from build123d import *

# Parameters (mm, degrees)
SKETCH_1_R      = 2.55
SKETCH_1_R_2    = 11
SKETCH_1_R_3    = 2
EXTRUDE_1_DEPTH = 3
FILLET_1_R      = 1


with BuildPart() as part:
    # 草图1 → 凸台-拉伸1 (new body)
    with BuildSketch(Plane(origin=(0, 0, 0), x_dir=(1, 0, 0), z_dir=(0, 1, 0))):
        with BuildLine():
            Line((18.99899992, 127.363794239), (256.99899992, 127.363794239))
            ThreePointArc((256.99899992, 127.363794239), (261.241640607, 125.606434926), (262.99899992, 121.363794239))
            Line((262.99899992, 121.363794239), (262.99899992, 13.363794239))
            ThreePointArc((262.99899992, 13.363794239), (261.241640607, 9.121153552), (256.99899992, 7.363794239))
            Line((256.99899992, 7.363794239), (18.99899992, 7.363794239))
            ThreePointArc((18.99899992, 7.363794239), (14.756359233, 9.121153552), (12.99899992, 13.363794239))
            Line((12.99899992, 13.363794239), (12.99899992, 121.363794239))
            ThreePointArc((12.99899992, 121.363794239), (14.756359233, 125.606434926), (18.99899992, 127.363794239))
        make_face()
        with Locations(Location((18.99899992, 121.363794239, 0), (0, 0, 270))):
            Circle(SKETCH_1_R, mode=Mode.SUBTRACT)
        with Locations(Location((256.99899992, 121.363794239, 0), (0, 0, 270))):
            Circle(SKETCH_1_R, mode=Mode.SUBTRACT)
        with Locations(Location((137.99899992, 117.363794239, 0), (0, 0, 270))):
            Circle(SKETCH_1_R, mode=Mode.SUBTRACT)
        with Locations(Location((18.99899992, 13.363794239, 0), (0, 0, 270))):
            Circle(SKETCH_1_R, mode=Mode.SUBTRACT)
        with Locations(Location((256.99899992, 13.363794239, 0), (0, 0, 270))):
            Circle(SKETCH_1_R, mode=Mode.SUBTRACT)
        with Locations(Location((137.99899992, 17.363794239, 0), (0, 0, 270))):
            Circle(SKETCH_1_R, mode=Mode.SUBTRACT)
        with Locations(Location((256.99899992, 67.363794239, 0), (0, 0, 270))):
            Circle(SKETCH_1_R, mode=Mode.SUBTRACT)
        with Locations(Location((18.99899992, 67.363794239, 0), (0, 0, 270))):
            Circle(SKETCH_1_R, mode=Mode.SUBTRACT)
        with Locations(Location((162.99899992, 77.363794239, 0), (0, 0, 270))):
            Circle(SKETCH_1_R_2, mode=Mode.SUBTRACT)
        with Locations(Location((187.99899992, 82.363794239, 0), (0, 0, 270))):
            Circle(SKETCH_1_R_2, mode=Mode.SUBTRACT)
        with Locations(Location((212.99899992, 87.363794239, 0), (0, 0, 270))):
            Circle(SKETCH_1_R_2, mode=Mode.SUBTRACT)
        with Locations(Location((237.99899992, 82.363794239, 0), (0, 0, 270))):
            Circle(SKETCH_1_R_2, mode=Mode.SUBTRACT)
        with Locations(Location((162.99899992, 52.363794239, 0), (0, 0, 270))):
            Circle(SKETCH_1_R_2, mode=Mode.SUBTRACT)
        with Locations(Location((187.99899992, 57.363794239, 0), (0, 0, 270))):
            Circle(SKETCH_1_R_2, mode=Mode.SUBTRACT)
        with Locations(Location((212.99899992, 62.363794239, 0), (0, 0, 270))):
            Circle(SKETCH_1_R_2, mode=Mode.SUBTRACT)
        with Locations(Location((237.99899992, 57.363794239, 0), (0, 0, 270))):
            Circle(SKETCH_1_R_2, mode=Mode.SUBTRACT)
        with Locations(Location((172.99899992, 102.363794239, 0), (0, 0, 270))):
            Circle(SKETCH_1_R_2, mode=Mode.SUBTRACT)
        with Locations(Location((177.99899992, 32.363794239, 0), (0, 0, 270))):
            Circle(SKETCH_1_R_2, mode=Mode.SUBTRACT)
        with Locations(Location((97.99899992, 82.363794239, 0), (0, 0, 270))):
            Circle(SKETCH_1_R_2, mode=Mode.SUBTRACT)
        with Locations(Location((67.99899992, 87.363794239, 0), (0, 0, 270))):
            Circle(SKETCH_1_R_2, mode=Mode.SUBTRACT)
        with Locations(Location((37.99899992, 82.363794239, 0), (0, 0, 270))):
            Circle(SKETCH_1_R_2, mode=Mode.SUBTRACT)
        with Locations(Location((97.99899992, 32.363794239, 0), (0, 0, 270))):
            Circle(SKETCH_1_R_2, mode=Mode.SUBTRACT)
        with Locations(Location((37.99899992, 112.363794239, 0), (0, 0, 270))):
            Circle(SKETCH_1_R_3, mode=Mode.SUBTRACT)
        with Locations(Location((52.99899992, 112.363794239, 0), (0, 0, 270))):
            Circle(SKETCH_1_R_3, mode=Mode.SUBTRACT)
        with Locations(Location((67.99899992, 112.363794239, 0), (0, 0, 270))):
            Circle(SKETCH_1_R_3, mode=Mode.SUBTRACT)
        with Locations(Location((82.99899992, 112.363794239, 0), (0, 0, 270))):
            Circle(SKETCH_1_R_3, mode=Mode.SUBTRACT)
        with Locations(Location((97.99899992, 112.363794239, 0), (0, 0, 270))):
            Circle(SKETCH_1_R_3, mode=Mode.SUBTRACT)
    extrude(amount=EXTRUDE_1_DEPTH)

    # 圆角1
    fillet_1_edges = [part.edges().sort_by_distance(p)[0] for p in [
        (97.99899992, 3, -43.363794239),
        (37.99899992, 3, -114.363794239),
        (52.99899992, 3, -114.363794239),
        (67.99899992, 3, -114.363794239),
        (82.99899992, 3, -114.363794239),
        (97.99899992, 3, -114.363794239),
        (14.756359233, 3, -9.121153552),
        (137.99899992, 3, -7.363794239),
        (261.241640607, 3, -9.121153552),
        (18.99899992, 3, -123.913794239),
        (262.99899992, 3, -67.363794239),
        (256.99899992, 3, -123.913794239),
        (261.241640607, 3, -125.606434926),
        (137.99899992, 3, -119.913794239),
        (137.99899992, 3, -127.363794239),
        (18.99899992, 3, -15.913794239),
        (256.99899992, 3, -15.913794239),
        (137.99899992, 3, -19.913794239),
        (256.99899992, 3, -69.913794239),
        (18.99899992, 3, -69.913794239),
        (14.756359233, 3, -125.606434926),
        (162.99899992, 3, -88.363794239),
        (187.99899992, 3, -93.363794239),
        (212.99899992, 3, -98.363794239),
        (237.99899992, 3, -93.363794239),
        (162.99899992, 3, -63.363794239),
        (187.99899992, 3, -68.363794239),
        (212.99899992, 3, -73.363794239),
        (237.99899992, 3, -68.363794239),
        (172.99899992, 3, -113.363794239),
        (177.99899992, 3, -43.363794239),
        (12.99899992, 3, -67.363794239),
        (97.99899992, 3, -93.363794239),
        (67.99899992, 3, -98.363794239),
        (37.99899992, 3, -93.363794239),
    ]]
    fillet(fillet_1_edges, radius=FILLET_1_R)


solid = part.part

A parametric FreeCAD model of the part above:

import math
import FreeCAD as App
import Part
import Sketcher
from FreeCAD import Vector
Q = App.Units.Quantity


def edges_at(feature, points):
    """Names of the edges that pass closest to the given points."""
    edges = feature.Shape.Edges
    near = lambda p: min(range(len(edges)), key=lambda i: edges[i].distToShape(Part.Vertex(*p))[0])
    return sorted({f"Edge{near(p) + 1}" for p in points})

doc = App.newDocument("Part")
params = doc.addObject("Spreadsheet::Sheet", "Params")
for row, (alias, value) in enumerate([
    ("sketch1_diameter", "22 mm"),
    ("sketch1_diameter2", "4 mm"),
    ("sketch1_radius", "6 mm"),
    ("sketch1_diameter3", "5.1 mm"),
    ("sketch1_width", "238 mm"),
    ("pad1_length", "3 mm"),
    ("fillet_radius", "1 mm"),
], start=1):
    params.set(f"A{row}", alias)
    params.set(f"B{row}", "=" + value)
    params.setAlias(f"B{row}", alias)

body = doc.addObject("PartDesign::Body", "Body")

# Sketch on XZ plane
sketch1 = doc.addObject("Sketcher::SketchObject", "Sketch")
body.addObject(sketch1)
sketch1.AttachmentSupport = (doc.XZ_Plane, [""])
sketch1.MapMode = "FlatFace"
sketch1.addGeometry(Part.LineSegment(Vector(257, -127.4, 0), Vector(19, -127.4, 0)), False)
sketch1.addGeometry(Part.ArcOfCircle(Part.Circle(Vector(19, -121.4, 0), Vector(0, 0, 1), 6), math.radians(180), math.radians(270)), False)
sketch1.addGeometry(Part.LineSegment(Vector(13, -121.4, 0), Vector(13, -13.4, 0)), False)
sketch1.addGeometry(Part.ArcOfCircle(Part.Circle(Vector(19, -13.4, 0), Vector(0, 0, 1), 6), math.radians(90), math.radians(180)), False)
sketch1.addGeometry(Part.LineSegment(Vector(19, -7.4, 0), Vector(257, -7.4, 0)), False)
sketch1.addGeometry(Part.ArcOfCircle(Part.Circle(Vector(257, -13.4, 0), Vector(0, 0, 1), 6), math.radians(0), math.radians(90)), False)
sketch1.addGeometry(Part.LineSegment(Vector(263, -13.4, 0), Vector(263, -121.4, 0)), False)
sketch1.addGeometry(Part.ArcOfCircle(Part.Circle(Vector(257, -121.4, 0), Vector(0, 0, 1), 6), math.radians(-90), math.radians(0)), False)
sketch1.addGeometry(Part.Circle(Vector(257, -13.4, 0), Vector(0, 0, 1), 2.5), False)
sketch1.addGeometry(Part.Circle(Vector(178, -32.4, 0), Vector(0, 0, 1), 11), False)
sketch1.addGeometry(Part.Circle(Vector(238, -57.4, 0), Vector(0, 0, 1), 11), False)
sketch1.addGeometry(Part.Circle(Vector(213, -62.4, 0), Vector(0, 0, 1), 11), False)
sketch1.addGeometry(Part.Circle(Vector(163, -52.4, 0), Vector(0, 0, 1), 11), False)
sketch1.addGeometry(Part.Circle(Vector(188, -57.4, 0), Vector(0, 0, 1), 11), False)
sketch1.addGeometry(Part.Circle(Vector(138, -17.4, 0), Vector(0, 0, 1), 2.5), False)
sketch1.addGeometry(Part.Circle(Vector(98, -32.4, 0), Vector(0, 0, 1), 11), False)
sketch1.addGeometry(Part.Circle(Vector(19, -13.4, 0), Vector(0, 0, 1), 2.5), False)
sketch1.addGeometry(Part.Circle(Vector(257, -67.4, 0), Vector(0, 0, 1), 2.5), False)
sketch1.addGeometry(Part.Circle(Vector(238, -82.4, 0), Vector(0, 0, 1), 11), False)
sketch1.addGeometry(Part.Circle(Vector(213, -87.4, 0), Vector(0, 0, 1), 11), False)
sketch1.addGeometry(Part.Circle(Vector(163, -77.4, 0), Vector(0, 0, 1), 11), False)
sketch1.addGeometry(Part.Circle(Vector(188, -82.4, 0), Vector(0, 0, 1), 11), False)
sketch1.addGeometry(Part.Circle(Vector(257, -121.4, 0), Vector(0, 0, 1), 2.5), False)
sketch1.addGeometry(Part.Circle(Vector(173, -102.4, 0), Vector(0, 0, 1), 11), False)
sketch1.addGeometry(Part.Circle(Vector(98, -82.4, 0), Vector(0, 0, 1), 11), False)
sketch1.addGeometry(Part.Circle(Vector(19, -67.4, 0), Vector(0, 0, 1), 2.5), False)
sketch1.addGeometry(Part.Circle(Vector(68, -87.4, 0), Vector(0, 0, 1), 11), False)
sketch1.addGeometry(Part.Circle(Vector(38, -82.4, 0), Vector(0, 0, 1), 11), False)
sketch1.addGeometry(Part.Circle(Vector(138, -117.4, 0), Vector(0, 0, 1), 2.5), False)
sketch1.addGeometry(Part.Circle(Vector(98, -112.4, 0), Vector(0, 0, 1), 2), False)
sketch1.addGeometry(Part.Circle(Vector(83, -112.4, 0), Vector(0, 0, 1), 2), False)
sketch1.addGeometry(Part.Circle(Vector(68, -112.4, 0), Vector(0, 0, 1), 2), False)
sketch1.addGeometry(Part.Circle(Vector(53, -112.4, 0), Vector(0, 0, 1), 2), False)
sketch1.addGeometry(Part.Circle(Vector(38, -112.4, 0), Vector(0, 0, 1), 2), False)
sketch1.addGeometry(Part.Circle(Vector(19, -121.4, 0), Vector(0, 0, 1), 2.5), False)
sketch1.addConstraint(Sketcher.Constraint("Tangent", 0, 2, 1, 2))
sketch1.addConstraint(Sketcher.Constraint("Tangent", 1, 1, 2, 1))
sketch1.addConstraint(Sketcher.Constraint("Tangent", 2, 2, 3, 2))
sketch1.addConstraint(Sketcher.Constraint("Tangent", 3, 1, 4, 1))
sketch1.addConstraint(Sketcher.Constraint("Tangent", 4, 2, 5, 2))
sketch1.addConstraint(Sketcher.Constraint("Tangent", 5, 1, 6, 1))
sketch1.addConstraint(Sketcher.Constraint("Tangent", 6, 2, 7, 2))
sketch1.addConstraint(Sketcher.Constraint("Tangent", 7, 1, 0, 1))
sketch1.addConstraint(Sketcher.Constraint("Horizontal", 0))
sketch1.addConstraint(Sketcher.Constraint("Vertical", 2))
sketch1.addConstraint(Sketcher.Constraint("Horizontal", 4))
sketch1.addConstraint(Sketcher.Constraint("Vertical", 6))
sketch1.addConstraint(Sketcher.Constraint("Coincident", 8, 3, 5, 3))
sketch1.addConstraint(Sketcher.Constraint("Coincident", 16, 3, 3, 3))
sketch1.addConstraint(Sketcher.Constraint("Coincident", 22, 3, 7, 3))
sketch1.addConstraint(Sketcher.Constraint("Coincident", 34, 3, 1, 3))
sketch1.addConstraint(Sketcher.Constraint("Equal", 1, 3))
sketch1.addConstraint(Sketcher.Constraint("Equal", 3, 5))
sketch1.addConstraint(Sketcher.Constraint("Equal", 5, 7))
sketch1.addConstraint(Sketcher.Constraint("Equal", 9, 10))
sketch1.addConstraint(Sketcher.Constraint("Equal", 10, 11))
sketch1.addConstraint(Sketcher.Constraint("Equal", 11, 12))
sketch1.addConstraint(Sketcher.Constraint("Equal", 12, 13))
sketch1.addConstraint(Sketcher.Constraint("Equal", 8, 14))
sketch1.addConstraint(Sketcher.Constraint("Equal", 13, 15))
sketch1.addConstraint(Sketcher.Constraint("Equal", 14, 16))
sketch1.addConstraint(Sketcher.Constraint("Equal", 16, 17))
sketch1.addConstraint(Sketcher.Constraint("Equal", 15, 18))
sketch1.addConstraint(Sketcher.Constraint("Equal", 18, 19))
sketch1.addConstraint(Sketcher.Constraint("Equal", 19, 20))
sketch1.addConstraint(Sketcher.Constraint("Equal", 20, 21))
sketch1.addConstraint(Sketcher.Constraint("Equal", 17, 22))
sketch1.addConstraint(Sketcher.Constraint("Equal", 21, 23))
sketch1.addConstraint(Sketcher.Constraint("Equal", 23, 24))
sketch1.addConstraint(Sketcher.Constraint("Equal", 22, 25))
sketch1.addConstraint(Sketcher.Constraint("Equal", 24, 26))
sketch1.addConstraint(Sketcher.Constraint("Equal", 26, 27))
sketch1.addConstraint(Sketcher.Constraint("Equal", 25, 28))
sketch1.addConstraint(Sketcher.Constraint("Equal", 29, 30))
sketch1.addConstraint(Sketcher.Constraint("Equal", 30, 31))
sketch1.addConstraint(Sketcher.Constraint("Equal", 31, 32))
sketch1.addConstraint(Sketcher.Constraint("Equal", 32, 33))
sketch1.addConstraint(Sketcher.Constraint("Equal", 28, 34))
sketch1.addConstraint(Sketcher.Constraint("Horizontal", 10, 3, 13, 3))
sketch1.addConstraint(Sketcher.Constraint("Horizontal", 9, 3, 15, 3))
sketch1.addConstraint(Sketcher.Constraint("Horizontal", 18, 3, 21, 3))
sketch1.addConstraint(Sketcher.Constraint("Horizontal", 21, 3, 24, 3))
sketch1.addConstraint(Sketcher.Constraint("Horizontal", 17, 3, 25, 3))
sketch1.addConstraint(Sketcher.Constraint("Horizontal", 19, 3, 26, 3))
sketch1.addConstraint(Sketcher.Constraint("Horizontal", 24, 3, 27, 3))
sketch1.addConstraint(Sketcher.Constraint("Horizontal", 29, 3, 30, 3))
sketch1.addConstraint(Sketcher.Constraint("Horizontal", 30, 3, 31, 3))
sketch1.addConstraint(Sketcher.Constraint("Horizontal", 31, 3, 32, 3))
sketch1.addConstraint(Sketcher.Constraint("Horizontal", 32, 3, 33, 3))
sketch1.addConstraint(Sketcher.Constraint("Vertical", 8, 3, 17, 3))
sketch1.addConstraint(Sketcher.Constraint("Vertical", 10, 3, 18, 3))
sketch1.addConstraint(Sketcher.Constraint("Vertical", 11, 3, 19, 3))
sketch1.addConstraint(Sketcher.Constraint("Vertical", 12, 3, 20, 3))
sketch1.addConstraint(Sketcher.Constraint("Vertical", 13, 3, 21, 3))
sketch1.addConstraint(Sketcher.Constraint("Vertical", 15, 3, 24, 3))
sketch1.addConstraint(Sketcher.Constraint("Vertical", 16, 3, 25, 3))
sketch1.addConstraint(Sketcher.Constraint("Vertical", 14, 3, 28, 3))
sketch1.addConstraint(Sketcher.Constraint("Vertical", 24, 3, 29, 3))
sketch1.addConstraint(Sketcher.Constraint("Vertical", 26, 3, 31, 3))
sketch1.addConstraint(Sketcher.Constraint("Vertical", 27, 3, 33, 3))
sketch1.addConstraint(Sketcher.Constraint("Diameter", 9, Q("22 mm")))
sketch1.addConstraint(Sketcher.Constraint("Diameter", 29, Q("4 mm")))
sketch1.addConstraint(Sketcher.Constraint("Radius", 1, Q("6 mm")))
sketch1.addConstraint(Sketcher.Constraint("Diameter", 8, Q("5.1 mm")))
sketch1.addConstraint(Sketcher.Constraint("DistanceX", 0, 2, 0, 1, Q("238 mm")))
sketch1.addConstraint(Sketcher.Constraint("DistanceY", 2, 1, 2, 2, Q("108 mm")))
sketch1.addConstraint(Sketcher.Constraint("DistanceX", 9, 3, 5, 3, Q("79 mm")))
sketch1.addConstraint(Sketcher.Constraint("DistanceY", 9, 3, 5, 3, Q("19 mm")))
sketch1.addConstraint(Sketcher.Constraint("DistanceX", 10, 3, 5, 3, Q("19 mm")))
sketch1.addConstraint(Sketcher.Constraint("DistanceY", 10, 3, 5, 3, Q("44 mm")))
sketch1.addConstraint(Sketcher.Constraint("DistanceX", 11, 3, 10, 3, Q("25 mm")))
sketch1.addConstraint(Sketcher.Constraint("DistanceY", 11, 3, 10, 3, Q("5 mm")))
sketch1.addConstraint(Sketcher.Constraint("DistanceX", 12, 3, 9, 3, Q("15 mm")))
sketch1.addConstraint(Sketcher.Constraint("DistanceY", 12, 3, 9, 3, Q("20 mm")))
sketch1.addConstraint(Sketcher.Constraint("DistanceX", 13, 3, 11, 3, Q("25 mm")))
sketch1.addConstraint(Sketcher.Constraint("DistanceX", 14, 3, 9, 3, Q("40 mm")))
sketch1.addConstraint(Sketcher.Constraint("DistanceY", 9, 3, 14, 3, Q("15 mm")))
sketch1.addConstraint(Sketcher.Constraint("DistanceX", 15, 3, 14, 3, Q("40 mm")))
sketch1.addConstraint(Sketcher.Constraint("DistanceY", 17, 3, 10, 3, Q("10 mm")))
sketch1.addConstraint(Sketcher.Constraint("DistanceY", 18, 3, 17, 3, Q("15 mm")))
sketch1.addConstraint(Sketcher.Constraint("DistanceY", 19, 3, 11, 3, Q("25 mm")))
sketch1.addConstraint(Sketcher.Constraint("DistanceY", 20, 3, 12, 3, Q("25 mm")))
sketch1.addConstraint(Sketcher.Constraint("DistanceX", 23, 3, 21, 3, Q("15 mm")))
sketch1.addConstraint(Sketcher.Constraint("DistanceY", 23, 3, 21, 3, Q("20 mm")))
sketch1.addConstraint(Sketcher.Constraint("DistanceX", 26, 3, 24, 3, Q("30 mm")))
sketch1.addConstraint(Sketcher.Constraint("DistanceX", 25, 3, 27, 3, Q("19 mm")))
sketch1.addConstraint(Sketcher.Constraint("DistanceY", 28, 3, 23, 3, Q("15 mm")))
sketch1.addConstraint(Sketcher.Constraint("DistanceY", 29, 3, 24, 3, Q("30 mm")))
sketch1.addConstraint(Sketcher.Constraint("DistanceX", 30, 3, 29, 3, Q("15 mm")))
sketch1.addConstraint(Sketcher.Constraint("DistanceX", 32, 3, 31, 3, Q("15 mm")))
sketch1.addConstraint(Sketcher.Constraint("DistanceX", -1, 1, 1, 3, Q("18.999 mm")))
sketch1.addConstraint(Sketcher.Constraint("DistanceY", 1, 3, -1, 1, Q("121.363794 mm")))
sketch1.setExpression("Constraints[65]", "Params.sketch1_diameter")
sketch1.setExpression("Constraints[66]", "Params.sketch1_diameter2")
sketch1.setExpression("Constraints[67]", "Params.sketch1_radius")
sketch1.setExpression("Constraints[68]", "Params.sketch1_diameter3")
sketch1.setExpression("Constraints[69]", "Params.sketch1_width")
pad1 = doc.addObject("PartDesign::Pad", "Pad")
body.addObject(pad1)
pad1.Profile = sketch1
pad1.setExpression("Length", "Params.pad1_length")
pad1.Reversed = True
doc.recompute()

fillet = doc.addObject("PartDesign::Fillet", "Fillet")
body.addObject(fillet)
fillet.Base = (pad1, edges_at(pad1, [
    (97.999, 3, -43.364),
    (37.999, 3, -114.364),
    (52.999, 3, -114.364),
    (67.999, 3, -114.364),
    (82.999, 3, -114.364),
    (97.999, 3, -114.364),
    (14.756, 3, -9.121),
    (137.999, 3, -7.364),
    (261.242, 3, -9.121),
    (18.999, 3, -123.914),
    (262.999, 3, -67.364),
    (256.999, 3, -123.914),
    (261.242, 3, -125.606),
    (137.999, 3, -119.914),
    (137.999, 3, -127.364),
    (18.999, 3, -15.914),
    (256.999, 3, -15.914),
    (137.999, 3, -19.914),
    (256.999, 3, -69.914),
    (18.999, 3, -69.914),
    (14.756, 3, -125.606),
    (162.999, 3, -88.364),
    (187.999, 3, -93.364),
    (212.999, 3, -98.364),
    (237.999, 3, -93.364),
    (162.999, 3, -63.364),
    (187.999, 3, -68.364),
    (212.999, 3, -73.364),
    (237.999, 3, -68.364),
    (172.999, 3, -113.364),
    (177.999, 3, -43.364),
    (12.999, 3, -67.364),
    (97.999, 3, -93.364),
    (67.999, 3, -98.364),
    (37.999, 3, -93.364),
]))
fillet.setExpression("Radius", "Params.fillet_radius")

doc.recompute()
